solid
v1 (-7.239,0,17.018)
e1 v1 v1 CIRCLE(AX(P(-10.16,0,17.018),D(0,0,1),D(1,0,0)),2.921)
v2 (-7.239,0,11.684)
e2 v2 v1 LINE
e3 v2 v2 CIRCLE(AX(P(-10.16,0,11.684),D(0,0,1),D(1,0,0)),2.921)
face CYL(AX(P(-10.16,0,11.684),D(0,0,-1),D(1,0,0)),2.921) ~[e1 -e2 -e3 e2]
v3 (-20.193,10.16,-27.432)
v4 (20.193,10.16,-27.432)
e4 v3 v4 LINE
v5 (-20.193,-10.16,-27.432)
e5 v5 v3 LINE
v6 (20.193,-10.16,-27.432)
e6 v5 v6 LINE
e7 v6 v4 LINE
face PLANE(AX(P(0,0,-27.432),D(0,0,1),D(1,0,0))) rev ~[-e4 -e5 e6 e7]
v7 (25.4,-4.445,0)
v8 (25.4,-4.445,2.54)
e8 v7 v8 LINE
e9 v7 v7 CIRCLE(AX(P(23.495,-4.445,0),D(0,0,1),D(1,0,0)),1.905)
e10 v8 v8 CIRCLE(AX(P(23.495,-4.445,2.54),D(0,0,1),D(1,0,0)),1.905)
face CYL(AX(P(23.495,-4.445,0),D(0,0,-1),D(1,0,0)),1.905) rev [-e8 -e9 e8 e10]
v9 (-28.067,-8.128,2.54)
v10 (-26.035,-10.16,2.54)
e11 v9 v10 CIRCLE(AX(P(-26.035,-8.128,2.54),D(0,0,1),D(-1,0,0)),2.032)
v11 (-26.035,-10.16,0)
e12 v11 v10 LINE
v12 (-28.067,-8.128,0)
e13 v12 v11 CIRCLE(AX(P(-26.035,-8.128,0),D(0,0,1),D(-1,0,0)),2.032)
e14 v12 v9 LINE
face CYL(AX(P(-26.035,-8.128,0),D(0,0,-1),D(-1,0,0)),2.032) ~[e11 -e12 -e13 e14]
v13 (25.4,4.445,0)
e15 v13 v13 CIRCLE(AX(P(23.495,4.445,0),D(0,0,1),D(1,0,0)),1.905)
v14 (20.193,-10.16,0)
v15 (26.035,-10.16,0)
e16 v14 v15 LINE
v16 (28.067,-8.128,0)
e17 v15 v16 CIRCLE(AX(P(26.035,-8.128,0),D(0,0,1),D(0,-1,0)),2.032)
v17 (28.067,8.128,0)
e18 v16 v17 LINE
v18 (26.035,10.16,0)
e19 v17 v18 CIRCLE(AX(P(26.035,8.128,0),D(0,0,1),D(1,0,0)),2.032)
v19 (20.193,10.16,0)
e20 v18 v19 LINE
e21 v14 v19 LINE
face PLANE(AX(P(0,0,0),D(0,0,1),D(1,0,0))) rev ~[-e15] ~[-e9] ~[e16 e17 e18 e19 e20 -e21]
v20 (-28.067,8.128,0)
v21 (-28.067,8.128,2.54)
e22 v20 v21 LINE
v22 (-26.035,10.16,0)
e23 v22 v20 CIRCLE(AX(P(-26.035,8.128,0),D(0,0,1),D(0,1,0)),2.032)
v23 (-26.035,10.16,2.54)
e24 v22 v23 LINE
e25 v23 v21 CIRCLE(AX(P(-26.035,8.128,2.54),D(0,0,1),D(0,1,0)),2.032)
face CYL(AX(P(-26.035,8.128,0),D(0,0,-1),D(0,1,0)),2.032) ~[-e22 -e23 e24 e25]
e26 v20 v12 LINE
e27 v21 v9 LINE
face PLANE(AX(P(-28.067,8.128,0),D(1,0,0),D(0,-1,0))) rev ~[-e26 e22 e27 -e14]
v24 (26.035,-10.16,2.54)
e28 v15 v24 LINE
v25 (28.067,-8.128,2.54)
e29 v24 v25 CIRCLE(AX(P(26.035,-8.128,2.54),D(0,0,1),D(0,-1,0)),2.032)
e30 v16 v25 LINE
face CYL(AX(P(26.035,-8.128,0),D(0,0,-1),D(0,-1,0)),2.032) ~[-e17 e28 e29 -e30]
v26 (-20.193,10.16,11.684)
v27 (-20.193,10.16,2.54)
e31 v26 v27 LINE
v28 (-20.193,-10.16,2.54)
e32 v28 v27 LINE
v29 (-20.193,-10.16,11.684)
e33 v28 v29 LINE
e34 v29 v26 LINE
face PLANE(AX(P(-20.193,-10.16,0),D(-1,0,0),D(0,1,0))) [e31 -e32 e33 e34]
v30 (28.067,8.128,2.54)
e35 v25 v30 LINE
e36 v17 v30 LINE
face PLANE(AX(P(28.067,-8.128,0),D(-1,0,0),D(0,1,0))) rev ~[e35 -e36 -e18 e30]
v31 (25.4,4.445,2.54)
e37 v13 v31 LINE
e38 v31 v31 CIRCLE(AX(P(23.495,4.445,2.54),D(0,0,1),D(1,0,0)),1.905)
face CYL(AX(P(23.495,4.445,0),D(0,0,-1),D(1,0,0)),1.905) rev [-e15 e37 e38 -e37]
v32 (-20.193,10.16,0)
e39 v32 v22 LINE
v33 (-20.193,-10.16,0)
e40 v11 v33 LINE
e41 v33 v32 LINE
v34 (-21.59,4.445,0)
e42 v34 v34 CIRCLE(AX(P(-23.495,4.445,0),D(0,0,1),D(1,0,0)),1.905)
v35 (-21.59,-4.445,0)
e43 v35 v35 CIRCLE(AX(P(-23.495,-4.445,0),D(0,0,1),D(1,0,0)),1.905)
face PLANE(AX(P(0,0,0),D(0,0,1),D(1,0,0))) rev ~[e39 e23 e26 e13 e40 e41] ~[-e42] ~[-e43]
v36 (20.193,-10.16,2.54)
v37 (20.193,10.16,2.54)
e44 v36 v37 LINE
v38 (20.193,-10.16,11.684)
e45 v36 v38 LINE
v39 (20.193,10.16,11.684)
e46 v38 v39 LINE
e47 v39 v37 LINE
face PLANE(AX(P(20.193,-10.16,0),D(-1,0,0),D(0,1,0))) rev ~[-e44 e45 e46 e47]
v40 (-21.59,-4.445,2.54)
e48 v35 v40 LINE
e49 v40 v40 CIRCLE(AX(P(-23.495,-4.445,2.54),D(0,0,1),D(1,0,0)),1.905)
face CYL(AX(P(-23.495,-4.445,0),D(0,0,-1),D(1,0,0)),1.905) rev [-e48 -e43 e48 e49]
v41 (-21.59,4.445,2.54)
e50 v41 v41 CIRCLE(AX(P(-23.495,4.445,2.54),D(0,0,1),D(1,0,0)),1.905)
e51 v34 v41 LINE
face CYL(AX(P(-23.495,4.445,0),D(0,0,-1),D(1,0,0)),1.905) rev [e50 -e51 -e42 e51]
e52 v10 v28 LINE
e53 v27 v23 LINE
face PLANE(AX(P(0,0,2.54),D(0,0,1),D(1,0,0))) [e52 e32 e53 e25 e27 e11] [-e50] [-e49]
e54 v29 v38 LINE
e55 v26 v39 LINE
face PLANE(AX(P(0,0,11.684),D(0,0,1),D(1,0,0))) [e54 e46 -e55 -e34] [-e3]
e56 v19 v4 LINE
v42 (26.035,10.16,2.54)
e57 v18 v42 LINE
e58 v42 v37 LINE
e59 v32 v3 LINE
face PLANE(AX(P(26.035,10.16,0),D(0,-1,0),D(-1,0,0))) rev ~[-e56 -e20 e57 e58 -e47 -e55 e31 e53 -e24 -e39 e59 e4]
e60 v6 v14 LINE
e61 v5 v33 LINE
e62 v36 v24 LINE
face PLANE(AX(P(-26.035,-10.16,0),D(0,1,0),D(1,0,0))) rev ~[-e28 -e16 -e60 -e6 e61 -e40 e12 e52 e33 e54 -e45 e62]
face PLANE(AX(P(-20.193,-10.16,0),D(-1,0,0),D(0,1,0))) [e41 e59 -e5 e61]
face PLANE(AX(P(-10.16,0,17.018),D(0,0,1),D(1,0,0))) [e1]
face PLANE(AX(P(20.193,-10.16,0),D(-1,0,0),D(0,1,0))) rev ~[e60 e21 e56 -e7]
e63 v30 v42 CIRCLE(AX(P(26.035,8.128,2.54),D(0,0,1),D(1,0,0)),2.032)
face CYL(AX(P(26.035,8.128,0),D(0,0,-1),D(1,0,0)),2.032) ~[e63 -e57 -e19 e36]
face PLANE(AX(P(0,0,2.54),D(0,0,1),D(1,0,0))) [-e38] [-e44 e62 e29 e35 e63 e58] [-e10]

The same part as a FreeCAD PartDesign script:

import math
import FreeCAD as App
import Part
import Sketcher
Q = App.Units.Quantity


def add_polygon(sketch, points):
    """Adds a closed chain of lines whose ends are joined by coincident constraints."""
    first, n = sketch.GeometryCount, len(points)
    for a, b in zip(points, points[1:] + points[:1]):
        sketch.addGeometry(Part.LineSegment(App.Vector(*a, 0), App.Vector(*b, 0)), False)
    for i in range(n):
        sketch.addConstraint(Sketcher.Constraint("Coincident", first + i, 2, first + (i + 1) % n, 1))

doc = App.newDocument("Part")
params = doc.addObject("Spreadsheet::Sheet", "Params")
for row, (alias, value) in enumerate([
    ("sketch1_height", "0.8 in"),
    ("sketch1_width", "1.59 in"),
    ("pad1_length", "1.08 in"),
    ("pad1_length2", "0.46 in"),
    ("sketch2_diameter", "0.15 in"),
    ("sketch2_radius", "0.08 in"),
    ("sketch2_width", "2.05 in"),
    ("sketch2_height", "0.64 in"),
    ("pad2_length", "0.1 in"),
    ("sketch3_diameter", "0.23 in"),
    ("pad3_length", "0.21 in"),
], start=1):
    params.set(f"A{row}", alias)
    params.set(f"B{row}", "=" + value)
    params.setAlias(f"B{row}", alias)

body = doc.addObject("PartDesign::Body", "Body")

# Sketch on XY plane
sketch1 = doc.addObject("Sketcher::SketchObject", "Sketch")
body.addObject(sketch1)
sketch1.AttachmentSupport = (doc.XY_Plane, [""])
sketch1.MapMode = "FlatFace"
add_polygon(sketch1, [(-20, 10), (-20, -10), (20, -10), (20, 10)])  # lines 0-3
sketch1.addConstraint([
    Sketcher.Constraint("Vertical", 0),
    Sketcher.Constraint("Horizontal", 1),
    Sketcher.Constraint("Vertical", 2),
    Sketcher.Constraint("Horizontal", 3),
    Sketcher.Constraint("Symmetric", 0, 2, 2, 2, -1, 1),
    Sketcher.Constraint("DistanceY", 0, 2, 0, 1, Q("0.8 in")),
    Sketcher.Constraint("DistanceX", 1, 1, 1, 2, Q("1.59 in")),
])
sketch1.setExpression("Constraints[9]", "Params.sketch1_height")
sketch1.setExpression("Constraints[10]", "Params.sketch1_width")
pad1 = doc.addObject("PartDesign::Pad", "Pad")
body.addObject(pad1)
pad1.Profile = sketch1
pad1.Type = "TwoLengths"
pad1.setExpression("Length", "Params.pad1_length")
pad1.setExpression("Length2", "Params.pad1_length2")
pad1.Reversed = True

# Sketch on XY plane
sketch2 = doc.addObject("Sketcher::SketchObject", "Sketch001")
body.addObject(sketch2)
sketch2.AttachmentSupport = (doc.XY_Plane, [""])
sketch2.MapMode = "FlatFace"
sketch2.addGeometry([
    Part.LineSegment(App.Vector(26, 10.2, 0), App.Vector(-26, 10.2, 0)),  # 0
    Part.ArcOfCircle(Part.Circle(App.Vector(-26, 8.1, 0), App.Vector(0, 0, 1), 2), math.radians(90), math.radians(180)),  # 1
    Part.LineSegment(App.Vector(-28.1, 8.1, 0), App.Vector(-28.1, -8.1, 0)),  # 2
    Part.ArcOfCircle(Part.Circle(App.Vector(-26, -8.1, 0), App.Vector(0, 0, 1), 2), math.radians(180), math.radians(270)),  # 3
    Part.LineSegment(App.Vector(-26, -10.2, 0), App.Vector(26, -10.2, 0)),  # 4
    Part.ArcOfCircle(Part.Circle(App.Vector(26, -8.1, 0), App.Vector(0, 0, 1), 2), math.radians(-90), math.radians(0)),  # 5
    Part.LineSegment(App.Vector(28.1, -8.1, 0), App.Vector(28.1, 8.1, 0)),  # 6
    Part.ArcOfCircle(Part.Circle(App.Vector(26, 8.1, 0), App.Vector(0, 0, 1), 2), math.radians(0), math.radians(90)),  # 7
    Part.Circle(App.Vector(-23.5, -4.4, 0), App.Vector(0, 0, 1), 1.9),  # 8
    Part.Circle(App.Vector(23.5, -4.4, 0), App.Vector(0, 0, 1), 1.9),  # 9
    Part.Circle(App.Vector(-23.5, 4.4, 0), App.Vector(0, 0, 1), 1.9),  # 10
    Part.Circle(App.Vector(23.5, 4.4, 0), App.Vector(0, 0, 1), 1.9),  # 11
], False)
sketch2.addConstraint([
    Sketcher.Constraint("Tangent", 0, 2, 1, 1),
    Sketcher.Constraint("Tangent", 1, 2, 2, 1),
    Sketcher.Constraint("Tangent", 2, 2, 3, 1),
    Sketcher.Constraint("Tangent", 3, 2, 4, 1),
    Sketcher.Constraint("Tangent", 4, 2, 5, 1),
    Sketcher.Constraint("Tangent", 5, 2, 6, 1),
    Sketcher.Constraint("Tangent", 6, 2, 7, 1),
    Sketcher.Constraint("Tangent", 7, 2, 0, 1),
    Sketcher.Constraint("Horizontal", 0),
    Sketcher.Constraint("Vertical", 2),
    Sketcher.Constraint("Horizontal", 4),
    Sketcher.Constraint("Vertical", 6),
    Sketcher.Constraint("Equal", 1, 3),
    Sketcher.Constraint("Equal", 3, 5),
    Sketcher.Constraint("Equal", 5, 7),
    Sketcher.Constraint("Equal", 8, 9),
    Sketcher.Constraint("Equal", 9, 10),
    Sketcher.Constraint("Equal", 10, 11),
    Sketcher.Constraint("Symmetric", 1, 3, 5, 3, -1, 1),
    Sketcher.Constraint("Symmetric", 9, 3, 10, 3, -1, 1),
    Sketcher.Constraint("Symmetric", 8, 3, 11, 3, -1, 1),
    Sketcher.Constraint("Symmetric", 8, 3, 9, 3, -2),
    Sketcher.Constraint("Diameter", 8, Q("0.15 in")),
    Sketcher.Constraint("Radius", 1, Q("0.08 in")),
    Sketcher.Constraint("DistanceX", 0, 2, 0, 1, Q("2.05 in")),
    Sketcher.Constraint("DistanceY", 2, 2, 2, 1, Q("0.64 in")),
    Sketcher.Constraint("DistanceX", 3, 3, 8, 3, Q("0.1 in")),
    Sketcher.Constraint("DistanceY", 8, 3, 10, 3, Q("0.35 in")),
])
sketch2.setExpression("Constraints[22]", "Params.sketch2_diameter")
sketch2.setExpression("Constraints[23]", "Params.sketch2_radius")
sketch2.setExpression("Constraints[24]", "Params.sketch2_width")
sketch2.setExpression("Constraints[25]", "Params.sketch2_height")
pad2 = doc.addObject("PartDesign::Pad", "Pad001")
body.addObject(pad2)
pad2.Profile = sketch2
pad2.setExpression("Length", "Params.pad2_length")

# Sketch on XY plane
sketch3 = doc.addObject("Sketcher::SketchObject", "Sketch002")
body.addObject(sketch3)
sketch3.AttachmentSupport = (doc.XY_Plane, [""])
sketch3.MapMode = "FlatFace"
sketch3.AttachmentOffset = App.Placement(App.Vector(0, 0, 0.46 * 25.4), App.Rotation())
sketch3.addGeometry(Part.Circle(App.Vector(-10.2, 0, 0), App.Vector(0, 0, 1), 2.9), False)
sketch3.addConstraint([
    Sketcher.Constraint("PointOnObject", 0, 3, -1),
    Sketcher.Constraint("Diameter", 0, Q("0.23 in")),
    Sketcher.Constraint("DistanceX", 0, 3, -1, 1, Q("0.4 in")),
])
sketch3.setExpression("Constraints[1]", "Params.sketch3_diameter")
pad3 = doc.addObject("PartDesign::Pad", "Pad002")
body.addObject(pad3)
pad3.Profile = sketch3
pad3.setExpression("Length", "Params.pad3_length")

doc.recompute()
